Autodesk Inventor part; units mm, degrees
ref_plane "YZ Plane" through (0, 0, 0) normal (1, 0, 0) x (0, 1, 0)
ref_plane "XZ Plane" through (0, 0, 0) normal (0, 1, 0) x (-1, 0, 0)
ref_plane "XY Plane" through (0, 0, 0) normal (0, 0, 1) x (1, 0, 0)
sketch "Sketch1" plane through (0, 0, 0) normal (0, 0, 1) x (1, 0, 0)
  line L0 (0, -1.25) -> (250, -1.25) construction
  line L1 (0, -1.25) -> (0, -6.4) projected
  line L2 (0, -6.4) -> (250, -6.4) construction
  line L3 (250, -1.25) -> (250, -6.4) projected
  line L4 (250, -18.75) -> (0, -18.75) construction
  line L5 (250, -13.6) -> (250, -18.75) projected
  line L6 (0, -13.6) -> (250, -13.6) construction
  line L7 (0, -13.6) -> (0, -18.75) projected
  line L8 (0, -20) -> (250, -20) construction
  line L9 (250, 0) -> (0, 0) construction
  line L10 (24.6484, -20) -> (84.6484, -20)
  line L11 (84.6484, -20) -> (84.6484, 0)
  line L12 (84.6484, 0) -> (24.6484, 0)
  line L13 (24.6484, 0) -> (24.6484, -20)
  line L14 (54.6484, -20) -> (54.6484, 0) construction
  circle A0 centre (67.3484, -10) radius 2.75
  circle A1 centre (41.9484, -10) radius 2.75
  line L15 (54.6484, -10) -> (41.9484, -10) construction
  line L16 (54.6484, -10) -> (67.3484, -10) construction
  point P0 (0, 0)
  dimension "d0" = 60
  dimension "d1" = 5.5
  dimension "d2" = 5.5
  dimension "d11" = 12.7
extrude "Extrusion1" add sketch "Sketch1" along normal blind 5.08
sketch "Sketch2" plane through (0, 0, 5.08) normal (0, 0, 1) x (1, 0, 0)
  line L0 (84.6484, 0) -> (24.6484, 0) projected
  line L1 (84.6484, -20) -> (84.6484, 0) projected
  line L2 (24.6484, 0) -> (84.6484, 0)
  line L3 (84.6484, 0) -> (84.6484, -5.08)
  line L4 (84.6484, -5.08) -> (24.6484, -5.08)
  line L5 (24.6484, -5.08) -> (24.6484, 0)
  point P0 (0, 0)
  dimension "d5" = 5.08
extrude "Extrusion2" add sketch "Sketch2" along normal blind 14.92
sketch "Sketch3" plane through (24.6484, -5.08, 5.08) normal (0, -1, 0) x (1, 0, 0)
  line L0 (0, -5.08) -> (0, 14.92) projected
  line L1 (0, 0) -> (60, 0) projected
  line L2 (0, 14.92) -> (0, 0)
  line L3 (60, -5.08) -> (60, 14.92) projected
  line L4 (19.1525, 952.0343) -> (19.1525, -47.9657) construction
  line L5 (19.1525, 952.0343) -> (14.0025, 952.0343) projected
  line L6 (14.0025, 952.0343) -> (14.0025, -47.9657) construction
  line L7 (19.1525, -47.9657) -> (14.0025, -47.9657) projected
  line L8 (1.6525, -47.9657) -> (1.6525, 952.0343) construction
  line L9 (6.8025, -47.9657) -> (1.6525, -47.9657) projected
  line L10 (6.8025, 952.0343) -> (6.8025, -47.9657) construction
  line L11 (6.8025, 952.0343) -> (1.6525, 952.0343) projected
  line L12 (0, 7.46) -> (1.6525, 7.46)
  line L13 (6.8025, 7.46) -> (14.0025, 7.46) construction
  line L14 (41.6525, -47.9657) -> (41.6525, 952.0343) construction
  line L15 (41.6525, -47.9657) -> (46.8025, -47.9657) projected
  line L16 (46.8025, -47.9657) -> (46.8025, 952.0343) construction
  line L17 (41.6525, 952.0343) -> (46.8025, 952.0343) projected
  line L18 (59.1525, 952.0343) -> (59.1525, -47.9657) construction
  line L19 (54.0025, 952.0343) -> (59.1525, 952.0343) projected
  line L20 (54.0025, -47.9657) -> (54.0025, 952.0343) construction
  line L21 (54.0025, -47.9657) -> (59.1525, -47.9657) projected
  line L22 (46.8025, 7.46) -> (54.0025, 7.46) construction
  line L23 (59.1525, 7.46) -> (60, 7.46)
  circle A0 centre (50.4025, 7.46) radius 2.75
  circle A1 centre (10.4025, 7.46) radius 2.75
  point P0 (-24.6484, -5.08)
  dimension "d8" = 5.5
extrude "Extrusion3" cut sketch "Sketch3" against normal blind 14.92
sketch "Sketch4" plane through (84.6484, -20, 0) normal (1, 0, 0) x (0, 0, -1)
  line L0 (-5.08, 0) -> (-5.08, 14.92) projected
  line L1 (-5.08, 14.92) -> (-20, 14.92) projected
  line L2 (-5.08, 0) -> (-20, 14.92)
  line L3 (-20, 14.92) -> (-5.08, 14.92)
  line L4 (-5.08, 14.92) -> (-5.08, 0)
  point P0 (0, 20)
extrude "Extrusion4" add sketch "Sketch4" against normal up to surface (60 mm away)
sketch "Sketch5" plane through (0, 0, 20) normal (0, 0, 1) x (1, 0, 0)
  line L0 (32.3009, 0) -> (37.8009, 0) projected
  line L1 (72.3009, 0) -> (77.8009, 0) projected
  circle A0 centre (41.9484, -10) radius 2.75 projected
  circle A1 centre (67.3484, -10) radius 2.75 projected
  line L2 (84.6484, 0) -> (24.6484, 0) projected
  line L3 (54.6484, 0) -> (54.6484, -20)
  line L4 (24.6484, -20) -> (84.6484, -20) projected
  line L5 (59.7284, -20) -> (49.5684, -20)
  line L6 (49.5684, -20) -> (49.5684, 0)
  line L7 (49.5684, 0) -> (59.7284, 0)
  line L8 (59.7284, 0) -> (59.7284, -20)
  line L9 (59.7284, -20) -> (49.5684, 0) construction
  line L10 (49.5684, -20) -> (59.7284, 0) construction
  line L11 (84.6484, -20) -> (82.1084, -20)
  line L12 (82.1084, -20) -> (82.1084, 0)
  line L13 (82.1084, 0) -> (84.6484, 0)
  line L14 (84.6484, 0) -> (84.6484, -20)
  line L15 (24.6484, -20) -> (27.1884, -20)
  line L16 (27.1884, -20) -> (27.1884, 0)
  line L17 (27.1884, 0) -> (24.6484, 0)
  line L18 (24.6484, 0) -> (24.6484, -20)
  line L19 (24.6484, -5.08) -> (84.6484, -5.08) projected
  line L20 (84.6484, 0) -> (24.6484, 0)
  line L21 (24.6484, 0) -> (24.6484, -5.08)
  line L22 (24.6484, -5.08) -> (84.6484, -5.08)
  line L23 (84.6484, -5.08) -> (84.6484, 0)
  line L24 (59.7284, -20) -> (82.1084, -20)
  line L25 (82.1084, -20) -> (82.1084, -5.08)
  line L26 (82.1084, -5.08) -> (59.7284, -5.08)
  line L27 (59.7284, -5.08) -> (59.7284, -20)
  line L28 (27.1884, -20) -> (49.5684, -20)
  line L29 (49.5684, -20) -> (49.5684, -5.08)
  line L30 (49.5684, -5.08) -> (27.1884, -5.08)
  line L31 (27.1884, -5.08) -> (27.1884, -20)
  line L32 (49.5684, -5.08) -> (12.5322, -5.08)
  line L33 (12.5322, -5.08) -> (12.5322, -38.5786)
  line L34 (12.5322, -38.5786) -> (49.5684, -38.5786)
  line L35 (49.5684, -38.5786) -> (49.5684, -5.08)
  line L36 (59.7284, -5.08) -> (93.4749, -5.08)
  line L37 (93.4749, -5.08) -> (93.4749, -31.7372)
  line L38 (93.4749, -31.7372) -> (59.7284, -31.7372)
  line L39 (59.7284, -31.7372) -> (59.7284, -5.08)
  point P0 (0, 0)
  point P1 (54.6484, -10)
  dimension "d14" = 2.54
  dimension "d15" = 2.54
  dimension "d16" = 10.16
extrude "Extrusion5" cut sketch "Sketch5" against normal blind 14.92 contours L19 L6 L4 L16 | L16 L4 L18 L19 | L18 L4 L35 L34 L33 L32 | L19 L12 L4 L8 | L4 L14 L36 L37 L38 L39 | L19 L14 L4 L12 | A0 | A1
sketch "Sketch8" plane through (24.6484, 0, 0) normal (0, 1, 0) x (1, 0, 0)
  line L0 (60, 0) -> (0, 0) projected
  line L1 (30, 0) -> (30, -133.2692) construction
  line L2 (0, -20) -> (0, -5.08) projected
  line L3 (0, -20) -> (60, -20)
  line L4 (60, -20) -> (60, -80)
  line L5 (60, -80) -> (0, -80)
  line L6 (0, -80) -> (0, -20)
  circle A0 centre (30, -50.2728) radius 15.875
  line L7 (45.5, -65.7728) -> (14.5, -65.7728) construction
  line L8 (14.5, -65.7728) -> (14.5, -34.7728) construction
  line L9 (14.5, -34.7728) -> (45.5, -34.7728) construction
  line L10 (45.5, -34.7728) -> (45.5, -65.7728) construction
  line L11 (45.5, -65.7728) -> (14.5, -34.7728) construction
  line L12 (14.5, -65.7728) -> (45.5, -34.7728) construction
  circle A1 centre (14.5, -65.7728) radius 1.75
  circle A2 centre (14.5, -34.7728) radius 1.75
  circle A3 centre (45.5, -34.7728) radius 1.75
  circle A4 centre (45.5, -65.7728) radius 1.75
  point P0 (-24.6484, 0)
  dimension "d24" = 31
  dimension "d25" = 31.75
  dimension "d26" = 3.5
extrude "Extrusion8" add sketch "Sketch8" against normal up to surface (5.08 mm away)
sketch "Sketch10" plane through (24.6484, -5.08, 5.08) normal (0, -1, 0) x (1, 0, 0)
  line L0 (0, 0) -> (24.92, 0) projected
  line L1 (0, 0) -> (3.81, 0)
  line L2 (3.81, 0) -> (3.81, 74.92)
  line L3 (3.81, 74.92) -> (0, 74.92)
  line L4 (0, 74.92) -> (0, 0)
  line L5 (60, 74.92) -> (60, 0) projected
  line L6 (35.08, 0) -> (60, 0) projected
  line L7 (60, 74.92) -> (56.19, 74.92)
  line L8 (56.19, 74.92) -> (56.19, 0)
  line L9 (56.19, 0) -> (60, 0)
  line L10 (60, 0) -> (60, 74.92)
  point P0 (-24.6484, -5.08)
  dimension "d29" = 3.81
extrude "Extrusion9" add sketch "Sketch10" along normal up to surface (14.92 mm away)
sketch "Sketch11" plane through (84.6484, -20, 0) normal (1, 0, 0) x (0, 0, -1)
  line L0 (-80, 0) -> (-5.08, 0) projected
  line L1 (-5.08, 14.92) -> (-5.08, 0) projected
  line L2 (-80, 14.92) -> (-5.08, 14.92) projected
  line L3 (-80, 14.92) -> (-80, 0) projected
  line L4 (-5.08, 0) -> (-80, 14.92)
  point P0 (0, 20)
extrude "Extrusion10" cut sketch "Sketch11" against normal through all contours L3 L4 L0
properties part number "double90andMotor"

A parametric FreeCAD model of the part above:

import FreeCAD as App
import Part
import Sketcher
Q = App.Units.Quantity

doc = App.newDocument("Part")
body = doc.addObject("PartDesign::Body", "Body")

# Sketch on XY plane
sketch1 = body.newObject("Sketcher::SketchObject", "Sketch")
sketch1.AttachmentSupport = (doc.getObject("XY_Plane"), [""])
sketch1.MapMode = "FlatFace"
sketch1.addGeometry([
    Part.LineSegment(App.Vector(24.6484, 0, 0), App.Vector(24.6484, -20, 0)),  # 0
    Part.LineSegment(App.Vector(24.6484, -20, 0), App.Vector(84.6484, -20, 0)),  # 1
    Part.LineSegment(App.Vector(84.6484, -20, 0), App.Vector(84.6484, 0, 0)),  # 2
    Part.LineSegment(App.Vector(84.6484, 0, 0), App.Vector(24.6484, 0, 0)),  # 3
    Part.Circle(App.Vector(41.9484, -10, 0), App.Vector(0, 0, 1), 2.75),  # 4
    Part.Circle(App.Vector(67.3484, -10, 0), App.Vector(0, 0, 1), 2.75),  # 5
], False)
sketch1.addConstraint([
    Sketcher.Constraint("Coincident", 0, 2, 1, 1),
    Sketcher.Constraint("Coincident", 1, 2, 2, 1),
    Sketcher.Constraint("Coincident", 2, 2, 3, 1),
    Sketcher.Constraint("Coincident", 3, 2, 0, 1),
    Sketcher.Constraint("Vertical", 0),
    Sketcher.Constraint("Horizontal", 1),
    Sketcher.Constraint("Vertical", 2),
    Sketcher.Constraint("Horizontal", 3),
    Sketcher.Constraint("Equal", 4, 5),
    Sketcher.Constraint("PointOnObject", 2, 2, -1),
    Sketcher.Constraint("Horizontal", 4, 3, 5, 3),
    Sketcher.Constraint("Diameter", 4, Q("5.5 mm")),
    Sketcher.Constraint("DistanceX", 1, 1, 1, 2, Q("2.3622 in")),
    Sketcher.Constraint("DistanceX", 4, 3, 5, 3, Q("1 in")),
    Sketcher.Constraint("DistanceY", 0, 2, 0, 1, Q("0.7874 in")),
    Sketcher.Constraint("DistanceX", -1, 1, 4, 3, Q("1.6515 in")),
    Sketcher.Constraint("DistanceY", 4, 3, -1, 1, Q("0.3937 in")),
    Sketcher.Constraint("DistanceX", -1, 1, 0, 2, Q("0.9704 in")),
])
pad1 = body.newObject("PartDesign::Pad", "Pad")
pad1.Profile = sketch1
pad1.Length = Q("0.2 in")

# Sketch on XY plane
sketch2 = body.newObject("Sketcher::SketchObject", "Sketch001")
sketch2.AttachmentSupport = (doc.getObject("XY_Plane"), [""])
sketch2.MapMode = "FlatFace"
sketch2.AttachmentOffset = App.Placement(App.Vector(0, 0, 0.2 * 25.4), App.Rotation())
sketch2.addGeometry([
    Part.LineSegment(App.Vector(84.6484, -5.08, 0), App.Vector(84.6484, 0, 0)),
    Part.LineSegment(App.Vector(84.6484, 0, 0), App.Vector(24.6484, 0, 0)),
    Part.LineSegment(App.Vector(24.6484, 0, 0), App.Vector(24.6484, -5.08, 0)),
    Part.LineSegment(App.Vector(24.6484, -5.08, 0), App.Vector(84.6484, -5.08, 0)),
], False)
sketch2.addConstraint([
    Sketcher.Constraint("Coincident", 0, 2, 1, 1),
    Sketcher.Constraint("Coincident", 1, 2, 2, 1),
    Sketcher.Constraint("Coincident", 2, 2, 3, 1),
    Sketcher.Constraint("Coincident", 3, 2, 0, 1),
    Sketcher.Constraint("Vertical", 0),
    Sketcher.Constraint("Horizontal", 1),
    Sketcher.Constraint("Vertical", 2),
    Sketcher.Constraint("Horizontal", 3),
    Sketcher.Constraint("PointOnObject", 0, 2, -1),
    Sketcher.Constraint("DistanceY", 0, 1, 0, 2, Q("0.2 in")),
    Sketcher.Constraint("DistanceX", 1, 2, 1, 1, Q("2.3622 in")),
    Sketcher.Constraint("DistanceX", -1, 1, 1, 2, Q("0.9704 in")),
])
pad2 = body.newObject("PartDesign::Pad", "Pad001")
pad2.Profile = sketch2
pad2.Length = Q("0.5874016 in")

# Sketch on XZ plane
sketch3 = body.newObject("Sketcher::SketchObject", "Sketch002")
sketch3.AttachmentSupport = (doc.getObject("XZ_Plane"), [""])
sketch3.MapMode = "FlatFace"
sketch3.AttachmentOffset = App.Placement(App.Vector(0, 0, 0.2 * 25.4), App.Rotation())
sketch3.addGeometry([
    Part.Circle(App.Vector(75.0509, 12.54, 0), App.Vector(0, 0, 1), 2.75),
    Part.Circle(App.Vector(35.0509, 12.54, 0), App.Vector(0, 0, 1), 2.75),
], False)
sketch3.addConstraint([
    Sketcher.Constraint("Equal", 0, 1),
    Sketcher.Constraint("Horizontal", 0, 3, 1, 3),
    Sketcher.Constraint("Diameter", 0, Q("5.5 mm")),
    Sketcher.Constraint("DistanceY", -1, 1, 0, 3, Q("0.4937 in")),
    Sketcher.Constraint("DistanceX", 1, 3, 0, 3, Q("1.5748 in")),
    Sketcher.Constraint("DistanceX", -1, 1, 0, 3, Q("75.051 mm")),
])
pocket1 = body.newObject("PartDesign::Pocket", "Pocket")
pocket1.Profile = sketch3
pocket1.Length = Q("0.5874016 in")

# Sketch on YZ plane
sketch4 = body.newObject("Sketcher::SketchObject", "Sketch003")
sketch4.AttachmentSupport = (doc.getObject("YZ_Plane"), [""])
sketch4.MapMode = "FlatFace"
sketch4.AttachmentOffset = App.Placement(App.Vector(0, 0, 84.6484), App.Rotation())
sketch4.addGeometry([
    Part.LineSegment(App.Vector(-5.08, 20, 0), App.Vector(-20, 5.08, 0)),
    Part.LineSegment(App.Vector(-20, 5.08, 0), App.Vector(-5.08, 5.08, 0)),
    Part.LineSegment(App.Vector(-5.08, 5.08, 0), App.Vector(-5.08, 20, 0)),
], False)
sketch4.addConstraint([
    Sketcher.Constraint("Coincident", 0, 2, 1, 1),
    Sketcher.Constraint("Coincident", 1, 2, 2, 1),
    Sketcher.Constraint("Coincident", 2, 2, 0, 1),
    Sketcher.Constraint("Horizontal", 1),
    Sketcher.Constraint("Vertical", 2),
    Sketcher.Constraint("Equal", 1, 2),
    Sketcher.Constraint("DistanceY", -1, 1, 0, 2, Q("0.2 in")),
    Sketcher.Constraint("DistanceX", 1, 2, -1, 1, Q("0.2 in")),
    Sketcher.Constraint("DistanceX", 1, 1, 1, 2, Q("0.5874 in")),
])
pad3 = body.newObject("PartDesign::Pad", "Pad002")
pad3.Profile = sketch4
pad3.Length = Q("2.3622047 in")
pad3.Reversed = True

# Sketch on XY plane
sketch5 = body.newObject("Sketcher::SketchObject", "Sketch004")
sketch5.AttachmentSupport = (doc.getObject("XY_Plane"), [""])
sketch5.MapMode = "FlatFace"
sketch5.AttachmentOffset = App.Placement(App.Vector(0, 0, 0.7874016 * 25.4), App.Rotation())
sketch5.addGeometry([
    Part.LineSegment(App.Vector(49.5684, -5.08, 0), App.Vector(12.5322, -5.08, 0)),  # 0
    Part.LineSegment(App.Vector(12.5322, -5.08, 0), App.Vector(12.5322, -38.5786, 0)),  # 1
    Part.LineSegment(App.Vector(12.5322, -38.5786, 0), App.Vector(49.5684, -38.5786, 0)),  # 2
    Part.LineSegment(App.Vector(49.5684, -38.5786, 0), App.Vector(49.5684, -5.08, 0)),  # 3
    Part.LineSegment(App.Vector(59.7284, -5.08, 0), App.Vector(59.7284, -31.7372, 0)),  # 4
    Part.LineSegment(App.Vector(59.7284, -31.7372, 0), App.Vector(93.4749, -31.7372, 0)),  # 5
    Part.LineSegment(App.Vector(93.4749, -31.7372, 0), App.Vector(93.4749, -5.08, 0)),  # 6
    Part.LineSegment(App.Vector(93.4749, -5.08, 0), App.Vector(59.7284, -5.08, 0)),  # 7
], False)
sketch5.addConstraint([
    Sketcher.Constraint("Coincident", 0, 2, 1, 1),
    Sketcher.Constraint("Coincident", 1, 2, 2, 1),
    Sketcher.Constraint("Coincident", 2, 2, 3, 1),
    Sketcher.Constraint("Coincident", 3, 2, 0, 1),
    Sketcher.Constraint("Coincident", 4, 2, 5, 1),
    Sketcher.Constraint("Coincident", 5, 2, 6, 1),
    Sketcher.Constraint("Coincident", 6, 2, 7, 1),
    Sketcher.Constraint("Coincident", 7, 2, 4, 1),
    Sketcher.Constraint("Horizontal", 0),
    Sketcher.Constraint("Vertical", 1),
    Sketcher.Constraint("Horizontal", 2),
    Sketcher.Constraint("Vertical", 3),
    Sketcher.Constraint("Vertical", 4),
    Sketcher.Constraint("Horizontal", 5),
    Sketcher.Constraint("Vertical", 6),
    Sketcher.Constraint("Horizontal", 7),
    Sketcher.Constraint("Horizontal", 3, 2, 6, 2),
    Sketcher.Constraint("DistanceX", 2, 2, 4, 2, Q("0.4 in")),
    Sketcher.Constraint("DistanceY", 0, 2, -1, 1, Q("0.2 in")),
    Sketcher.Constraint("DistanceX", 5, 1, 5, 2, Q("1.3286 in")),
    Sketcher.Constraint("DistanceY", 4, 2, 4, 1, Q("1.0495 in")),
    Sketcher.Constraint("DistanceX", 0, 2, 0, 1, Q("37.0362 mm")),
    Sketcher.Constraint("DistanceY", 1, 2, 1, 1, Q("33.4986 mm")),
    Sketcher.Constraint("DistanceX", -1, 1, 0, 2, Q("0.4934 in")),
])
pocket2 = body.newObject("PartDesign::Pocket", "Pocket001")
pocket2.Profile = sketch5
pocket2.Length = Q("0.5874016 in")

# Sketch on XZ plane
sketch6 = body.newObject("Sketcher::SketchObject", "Sketch005")
sketch6.AttachmentSupport = (doc.getObject("XZ_Plane"), [""])
sketch6.MapMode = "FlatFace"
sketch6.addGeometry([
    Part.LineSegment(App.Vector(84.6484, 20, 0), App.Vector(24.6484, 20, 0)),  # 0
    Part.LineSegment(App.Vector(24.6484, 20, 0), App.Vector(24.6484, 80, 0)),  # 1
    Part.LineSegment(App.Vector(24.6484, 80, 0), App.Vector(84.6484, 80, 0)),  # 2
    Part.LineSegment(App.Vector(84.6484, 80, 0), App.Vector(84.6484, 20, 0)),  # 3
    Part.Circle(App.Vector(39.1484, 65.7728, 0), App.Vector(0, 0, 1), 1.75),  # 4
    Part.Circle(App.Vector(70.1484, 65.7728, 0), App.Vector(0, 0, 1), 1.75),  # 5
    Part.Circle(App.Vector(54.6484, 50.2728, 0), App.Vector(0, 0, 1), 15.875),  # 6
    Part.Circle(App.Vector(39.1484, 34.7728, 0), App.Vector(0, 0, 1), 1.75),  # 7
    Part.Circle(App.Vector(70.1484, 34.7728, 0), App.Vector(0, 0, 1), 1.75),  # 8
], False)
sketch6.addConstraint([
    Sketcher.Constraint("Coincident", 0, 2, 1, 1),
    Sketcher.Constraint("Coincident", 1, 2, 2, 1),
    Sketcher.Constraint("Coincident", 2, 2, 3, 1),
    Sketcher.Constraint("Coincident", 3, 2, 0, 1),
    Sketcher.Constraint("Horizontal", 0),
    Sketcher.Constraint("Vertical", 1),
    Sketcher.Constraint("Horizontal", 2),
    Sketcher.Constraint("Vertical", 3),
    Sketcher.Constraint("Equal", 4, 5),
    Sketcher.Constraint("Equal", 5, 7),
    Sketcher.Constraint("Equal", 7, 8),
    Sketcher.Constraint("Horizontal", 4, 3, 5, 3),
    Sketcher.Constraint("Horizontal", 7, 3, 8, 3),
    Sketcher.Constraint("Vertical", 4, 3, 7, 3),
    Sketcher.Constraint("Vertical", 5, 3, 8, 3),
    Sketcher.Constraint("Equal", 2, 1),
    Sketcher.Constraint("Diameter", 6, Q("1.25 in")),
    Sketcher.Constraint("Diameter", 4, Q("0.1378 in")),
    Sketcher.Constraint("DistanceX", 4, 3, 5, 3, Q("31 mm")),
    Sketcher.Constraint("DistanceY", 7, 3, 4, 3, Q("31 mm")),
    Sketcher.Constraint("DistanceX", 0, 2, 0, 1, Q("2.3622 in")),
    Sketcher.Constraint("DistanceY", -1, 1, 7, 3, Q("1.369 in")),
    Sketcher.Constraint("DistanceX", -1, 1, 6, 3, Q("2.1515 in")),
    Sketcher.Constraint("DistanceX", -1, 1, 0, 2, Q("0.9704 in")),
    Sketcher.Constraint("DistanceY", -1, 1, 0, 2, Q("0.7874 in")),
    Sketcher.Constraint("DistanceX", -1, 1, 4, 3, Q("39.1484 mm")),
    Sketcher.Constraint("DistanceY", -1, 1, 6, 3, Q("50.2728 mm")),
])
pad4 = body.newObject("PartDesign::Pad", "Pad003")
pad4.Profile = sketch6
pad4.Length = Q("0.2 in")

# Sketch on XZ plane
sketch7 = body.newObject("Sketcher::SketchObject", "Sketch006")
sketch7.AttachmentSupport = (doc.getObject("XZ_Plane"), [""])
sketch7.MapMode = "FlatFace"
sketch7.AttachmentOffset = App.Placement(App.Vector(0, 0, 0.2 * 25.4), App.Rotation())
sketch7.addGeometry([
    Part.LineSegment(App.Vector(24.6484, 80, 0), App.Vector(24.6484, 5.08, 0)),  # 0
    Part.LineSegment(App.Vector(24.6484, 5.08, 0), App.Vector(28.4584, 5.08, 0)),  # 1
    Part.LineSegment(App.Vector(28.4584, 5.08, 0), App.Vector(28.4584, 80, 0)),  # 2
    Part.LineSegment(App.Vector(28.4584, 80, 0), App.Vector(24.6484, 80, 0)),  # 3
    Part.LineSegment(App.Vector(84.6484, 5.08, 0), App.Vector(84.6484, 80, 0)),  # 4
    Part.LineSegment(App.Vector(84.6484, 80, 0), App.Vector(80.8384, 80, 0)),  # 5
    Part.LineSegment(App.Vector(80.8384, 80, 0), App.Vector(80.8384, 5.08, 0)),  # 6
    Part.LineSegment(App.Vector(80.8384, 5.08, 0), App.Vector(84.6484, 5.08, 0)),  # 7
], False)
sketch7.addConstraint([
    Sketcher.Constraint("Coincident", 0, 2, 1, 1),
    Sketcher.Constraint("Coincident", 1, 2, 2, 1),
    Sketcher.Constraint("Coincident", 2, 2, 3, 1),
    Sketcher.Constraint("Coincident", 3, 2, 0, 1),
    Sketcher.Constraint("Coincident", 4, 2, 5, 1),
    Sketcher.Constraint("Coincident", 5, 2, 6, 1),
    Sketcher.Constraint("Coincident", 6, 2, 7, 1),
    Sketcher.Constraint("Coincident", 7, 2, 4, 1),
    Sketcher.Constraint("Vertical", 0),
    Sketcher.Constraint("Horizontal", 1),
    Sketcher.Constraint("Vertical", 2),
    Sketcher.Constraint("Horizontal", 3),
    Sketcher.Constraint("Vertical", 4),
    Sketcher.Constraint("Horizontal", 5),
    Sketcher.Constraint("Vertical", 6),
    Sketcher.Constraint("Horizontal", 7),
    Sketcher.Constraint("Horizontal", 3, 2, 4, 2),
    Sketcher.Constraint("Horizontal", 1, 2, 6, 2),
    Sketcher.Constraint("Equal", 3, 5),
    Sketcher.Constraint("DistanceX", 1, 1, 1, 2, Q("0.15 in")),
    Sketcher.Constraint("DistanceY", -1, 1, 0, 2, Q("0.2 in")),
    Sketcher.Constraint("DistanceY", 0, 2, 0, 1, Q("2.9496 in")),
    Sketcher.Constraint("DistanceX", -1, 1, 0, 2, Q("0.9704 in")),
    Sketcher.Constraint("DistanceX", 2, 2, 4, 2, Q("2.2122 in")),
])
pad5 = body.newObject("PartDesign::Pad", "Pad004")
pad5.Profile = sketch7
pad5.Length = Q("0.5874016 in")

# Sketch on YZ plane
sketch8 = body.newObject("Sketcher::SketchObject", "Sketch007")
sketch8.AttachmentSupport = (doc.getObject("YZ_Plane"), [""])
sketch8.MapMode = "FlatFace"
sketch8.AttachmentOffset = App.Placement(App.Vector(0, 0, 84.6484), App.Rotation())
sketch8.addGeometry([
    Part.LineSegment(App.Vector(-5.08, 80, 0), App.Vector(-20, 80, 0)),
    Part.LineSegment(App.Vector(-20, 80, 0), App.Vector(-20, 5.08, 0)),
    Part.LineSegment(App.Vector(-20, 5.08, 0), App.Vector(-5.08, 80, 0)),
], False)
sketch8.addConstraint([
    Sketcher.Constraint("Coincident", 0, 2, 1, 1),
    Sketcher.Constraint("Coincident", 1, 2, 2, 1),
    Sketcher.Constraint("Coincident", 2, 2, 0, 1),
    Sketcher.Constraint("Horizontal", 0),
    Sketcher.Constraint("Vertical", 1),
    Sketcher.Constraint("DistanceY", -1, 1, 1, 2, Q("0.2 in")),
    Sketcher.Constraint("DistanceX", 2, 2, -1, 1, Q("0.2 in")),
    Sketcher.Constraint("DistanceX", 0, 2, 0, 1, Q("0.5874 in")),
    Sketcher.Constraint("DistanceY", 1, 2, 1, 1, Q("2.9496 in")),
])
pocket3 = body.newObject("PartDesign::Pocket", "Pocket002")
pocket3.Profile = sketch8
pocket3.Type = "ThroughAll"

doc.recompute()
